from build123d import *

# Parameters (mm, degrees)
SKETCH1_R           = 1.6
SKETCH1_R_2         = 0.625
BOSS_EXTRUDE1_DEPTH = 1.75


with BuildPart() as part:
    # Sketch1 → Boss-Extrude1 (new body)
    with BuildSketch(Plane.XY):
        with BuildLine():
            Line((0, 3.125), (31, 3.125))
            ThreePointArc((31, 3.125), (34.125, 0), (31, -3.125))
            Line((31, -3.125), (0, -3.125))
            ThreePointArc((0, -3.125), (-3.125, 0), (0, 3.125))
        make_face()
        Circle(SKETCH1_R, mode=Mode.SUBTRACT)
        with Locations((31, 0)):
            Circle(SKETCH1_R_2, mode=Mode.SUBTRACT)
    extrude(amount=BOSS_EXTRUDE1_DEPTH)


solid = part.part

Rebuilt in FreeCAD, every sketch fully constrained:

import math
import FreeCAD as App
import Part
import Sketcher
from FreeCAD import Vector

doc = App.newDocument("Part")
body = doc.addObject("PartDesign::Body", "Body")

# Sketch on XY plane
sketch1 = body.newObject("Sketcher::SketchObject", "Sketch")
sketch1.AttachmentSupport = (doc.getObject("XY_Plane"), [""])
sketch1.MapMode = "FlatFace"
sketch1.addGeometry(Part.LineSegment(Vector(31, 3.125, 0), Vector(0, 3.125, 0)), False)
sketch1.addGeometry(Part.ArcOfCircle(Part.Circle(Vector(0, 0, 0), Vector(0, 0, 1), 3.125), math.radians(90), math.radians(270)), False)
sketch1.addGeometry(Part.LineSegment(Vector(0, -3.125, 0), Vector(31, -3.125, 0)), False)
sketch1.addGeometry(Part.ArcOfCircle(Part.Circle(Vector(31, 0, 0), Vector(0, 0, 1), 3.125), math.radians(-90), math.radians(90)), False)
sketch1.addGeometry(Part.Circle(Vector(31, 0, 0), Vector(0, 0, 1), 0.625), False)
sketch1.addGeometry(Part.Circle(Vector(0, 0, 0), Vector(0, 0, 1), 1.6), False)
sketch1.addConstraint(Sketcher.Constraint("Tangent", 0, 2, 1, 1))
sketch1.addConstraint(Sketcher.Constraint("Tangent", 1, 2, 2, 1))
sketch1.addConstraint(Sketcher.Constraint("Tangent", 2, 2, 3, 1))
sketch1.addConstraint(Sketcher.Constraint("Tangent", 3, 2, 0, 1))
sketch1.addConstraint(Sketcher.Constraint("Horizontal", 0))
sketch1.addConstraint(Sketcher.Constraint("Horizontal", 2))
sketch1.addConstraint(Sketcher.Constraint("Coincident", 1, 3, -1, 1))
sketch1.addConstraint(Sketcher.Constraint("Coincident", 5, 3, -1, 1))
sketch1.addConstraint(Sketcher.Constraint("Coincident", 4, 3, 3, 3))
sketch1.addConstraint(Sketcher.Constraint("Diameter", 5, 3.2))
sketch1.addConstraint(Sketcher.Constraint("Diameter", 4, 1.25))
sketch1.addConstraint(Sketcher.Constraint("DistanceX", 0, 2, 0, 1, 31.0))
sketch1.addConstraint(Sketcher.Constraint("Radius", 1, 3.125))
pad1 = body.newObject("PartDesign::Pad", "Pad")
pad1.Profile = sketch1
pad1.Length = 1.75

doc.recompute()
